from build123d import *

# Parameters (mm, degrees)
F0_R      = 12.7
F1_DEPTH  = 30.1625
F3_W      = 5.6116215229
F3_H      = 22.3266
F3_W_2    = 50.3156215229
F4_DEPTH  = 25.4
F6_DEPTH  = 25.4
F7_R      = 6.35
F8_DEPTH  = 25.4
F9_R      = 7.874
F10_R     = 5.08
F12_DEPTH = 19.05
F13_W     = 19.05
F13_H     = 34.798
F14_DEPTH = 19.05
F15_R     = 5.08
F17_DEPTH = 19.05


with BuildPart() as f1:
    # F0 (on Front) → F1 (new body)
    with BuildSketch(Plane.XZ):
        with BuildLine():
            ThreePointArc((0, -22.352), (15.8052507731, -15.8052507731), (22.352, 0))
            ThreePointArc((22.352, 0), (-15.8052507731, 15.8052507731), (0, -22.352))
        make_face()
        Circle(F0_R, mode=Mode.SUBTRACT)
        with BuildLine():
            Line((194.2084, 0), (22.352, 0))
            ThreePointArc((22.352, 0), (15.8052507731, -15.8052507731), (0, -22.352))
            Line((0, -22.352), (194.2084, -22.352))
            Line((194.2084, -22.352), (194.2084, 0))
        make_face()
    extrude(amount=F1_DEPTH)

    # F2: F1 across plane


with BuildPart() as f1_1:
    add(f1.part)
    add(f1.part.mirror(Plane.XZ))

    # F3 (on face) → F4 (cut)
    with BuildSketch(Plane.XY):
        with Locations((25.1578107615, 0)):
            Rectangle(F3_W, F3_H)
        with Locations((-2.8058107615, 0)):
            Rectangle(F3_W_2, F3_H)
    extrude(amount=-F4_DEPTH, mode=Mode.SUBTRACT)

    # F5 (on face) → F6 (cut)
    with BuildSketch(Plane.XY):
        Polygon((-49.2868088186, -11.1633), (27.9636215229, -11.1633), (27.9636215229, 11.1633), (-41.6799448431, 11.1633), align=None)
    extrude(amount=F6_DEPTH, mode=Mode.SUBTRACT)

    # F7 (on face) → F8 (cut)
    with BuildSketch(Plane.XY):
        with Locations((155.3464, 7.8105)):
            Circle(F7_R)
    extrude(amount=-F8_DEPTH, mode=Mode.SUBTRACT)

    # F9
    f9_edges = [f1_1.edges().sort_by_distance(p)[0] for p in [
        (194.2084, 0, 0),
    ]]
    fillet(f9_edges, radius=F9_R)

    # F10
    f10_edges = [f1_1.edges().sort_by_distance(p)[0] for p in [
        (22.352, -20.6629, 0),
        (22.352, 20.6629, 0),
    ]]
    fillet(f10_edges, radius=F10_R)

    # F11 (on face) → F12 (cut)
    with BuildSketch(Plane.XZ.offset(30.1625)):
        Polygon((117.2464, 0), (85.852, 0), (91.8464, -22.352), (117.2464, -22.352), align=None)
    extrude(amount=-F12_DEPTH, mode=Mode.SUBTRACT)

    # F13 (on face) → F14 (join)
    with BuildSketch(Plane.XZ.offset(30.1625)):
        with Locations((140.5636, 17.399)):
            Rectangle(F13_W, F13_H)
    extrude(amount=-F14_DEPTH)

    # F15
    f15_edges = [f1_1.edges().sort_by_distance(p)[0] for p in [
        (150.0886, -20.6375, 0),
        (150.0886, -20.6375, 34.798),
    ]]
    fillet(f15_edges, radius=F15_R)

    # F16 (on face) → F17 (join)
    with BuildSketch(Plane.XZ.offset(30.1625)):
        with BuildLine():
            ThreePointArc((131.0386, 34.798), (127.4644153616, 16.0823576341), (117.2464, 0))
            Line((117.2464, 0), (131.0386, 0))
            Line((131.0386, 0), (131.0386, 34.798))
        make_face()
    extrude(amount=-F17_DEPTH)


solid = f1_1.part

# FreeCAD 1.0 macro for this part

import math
import FreeCAD as App
import Part
import Sketcher
from FreeCAD import Vector
Q = App.Units.Quantity


def edges_at(feature, points):
    """Names of the edges that pass closest to the given points."""
    edges = feature.Shape.Edges
    near = lambda p: min(range(len(edges)), key=lambda i: edges[i].distToShape(Part.Vertex(*p))[0])
    return sorted({f"Edge{near(p) + 1}" for p in points})

doc = App.newDocument("Part")
params = doc.addObject("Spreadsheet::Sheet", "Params")
for row, (alias, value) in enumerate([
    ("sketch1_diameter", "1 in"),
    ("sketch1_radius", "0.88 in"),
    ("sketch1_width", "7.646 in"),
    ("pad1_length", "1.1875 in"),
    ("sketch2_height", "0.879 in"),
    ("pocket1_length", "1 in"),
    ("sketch3_height", "0.879 in"),
    ("pocket2_length", "1 in"),
    ("sketch4_diameter", "0.5 in"),
    ("pocket3_length", "1 in"),
    ("fillet_radius", "0.31 in"),
    ("fillet2_radius", "0.2 in"),
    ("sketch5_width", "1 in"),
    ("sketch5_height", "0.88 in"),
    ("sketch5_width2", "1.236 in"),
    ("pocket4_length", "0.75 in"),
    ("sketch6_width", "0.75 in"),
    ("sketch6_height", "1.37 in"),
    ("pad2_length", "0.75 in"),
    ("fillet3_radius", "0.2 in"),
    ("sketch7_radius", "2 in"),
    ("sketch7_height", "1.37 in"),
    ("sketch7_width", "0.543 in"),
    ("pad3_length", "0.75 in"),
], start=1):
    params.set(f"A{row}", alias)
    params.set(f"B{row}", "=" + value)
    params.setAlias(f"B{row}", alias)

body = doc.addObject("PartDesign::Body", "Body")

sketch1 = doc.addObject("Sketcher::SketchObject", "Sketch")
body.addObject(sketch1)
sketch1.AttachmentSupport = (doc.XZ_Plane, [""])
sketch1.MapMode = "FlatFace"
sketch1.addGeometry([
    Part.ArcOfCircle(Part.Circle(Vector(0, 0, 0), Vector(0, 0, 1), 22), math.radians(0), math.radians(270)),
    Part.LineSegment(Vector(0, -22, 0), Vector(194, -22, 0)),
    Part.LineSegment(Vector(194, -22, 0), Vector(194, 0, 0)),
    Part.LineSegment(Vector(194, 0, 0), Vector(22, 0, 0)),
    Part.Circle(Vector(0, 0, 0), Vector(0, 0, 1), 13),
], False)
sketch1.addConstraint([
    Sketcher.Constraint("Tangent", 0, 2, 1, 1),
    Sketcher.Constraint("Coincident", 1, 2, 2, 1),
    Sketcher.Constraint("Coincident", 2, 2, 3, 1),
    Sketcher.Constraint("Coincident", 3, 2, 0, 1),
    Sketcher.Constraint("Horizontal", 1),
    Sketcher.Constraint("Vertical", 2),
    Sketcher.Constraint("Horizontal", 3),
    Sketcher.Constraint("Coincident", 0, 3, -1, 1),
    Sketcher.Constraint("Coincident", 4, 3, -1, 1),
    Sketcher.Constraint("PointOnObject", 2, 2, -1),
    Sketcher.Constraint("Diameter", 4, Q("1 in")),
    Sketcher.Constraint("Radius", 0, Q("0.88 in")),
    Sketcher.Constraint("DistanceX", 1, 1, 1, 2, Q("7.646 in")),
])
sketch1.setExpression("Constraints[10]", "Params.sketch1_diameter")
sketch1.setExpression("Constraints[11]", "Params.sketch1_radius")
sketch1.setExpression("Constraints[12]", "Params.sketch1_width")
pad1 = doc.addObject("PartDesign::Pad", "Pad")
body.addObject(pad1)
pad1.Profile = sketch1
pad1.setExpression("Length", "Params.pad1_length")
body2 = doc.addObject("PartDesign::Body", "Body001")
doc.recompute()

body2.BaseFeature = body
doc.recompute()

mirroring = doc.addObject("Part::Mirroring", "Mirroring")
mirroring.Source = body
mirroring.Base = Vector(0, 0, 0)
mirroring.Normal = Vector(0, -1, 0)
body3 = doc.addObject("PartDesign::Body", "Body002")
body3.BaseFeature = mirroring
boolean = doc.addObject("PartDesign::Boolean", "Boolean")
body2.addObject(boolean)
boolean.Type = "Fuse"
boolean.addObjects([body3])
doc.recompute()

sketch2 = doc.addObject("Sketcher::SketchObject", "Sketch001")
body2.addObject(sketch2)
sketch2.AttachmentSupport = (doc.getObject("XY_Plane001"), [""])
sketch2.MapMode = "FlatFace"
sketch2.addGeometry([
    Part.LineSegment(Vector(28, -11, 0), Vector(28, 11, 0)),
    Part.LineSegment(Vector(28, 11, 0), Vector(-28, 11, 0)),
    Part.LineSegment(Vector(-28, 11, 0), Vector(-28, -11, 0)),
    Part.LineSegment(Vector(-28, -11, 0), Vector(28, -11, 0)),
], False)
sketch2.addConstraint([
    Sketcher.Constraint("Coincident", 0, 2, 1, 1),
    Sketcher.Constraint("Coincident", 1, 2, 2, 1),
    Sketcher.Constraint("Coincident", 2, 2, 3, 1),
    Sketcher.Constraint("Coincident", 3, 2, 0, 1),
    Sketcher.Constraint("Vertical", 0),
    Sketcher.Constraint("Horizontal", 1),
    Sketcher.Constraint("Vertical", 2),
    Sketcher.Constraint("Horizontal", 3),
    Sketcher.Constraint("Symmetric", 0, 2, 2, 2, -1, 1),
    Sketcher.Constraint("DistanceY", 0, 1, 0, 2, Q("0.879 in")),
    Sketcher.Constraint("DistanceX", 1, 2, 1, 1, 55.927243),
])
sketch2.setExpression("Constraints[9]", "Params.sketch2_height")
pocket1 = doc.addObject("PartDesign::Pocket", "Pocket")
body2.addObject(pocket1)
pocket1.Profile = sketch2
pocket1.setExpression("Length", "Params.pocket1_length")

sketch3 = doc.addObject("Sketcher::SketchObject", "Sketch002")
body2.addObject(sketch3)
sketch3.AttachmentSupport = (doc.getObject("XY_Plane001"), [""])
sketch3.MapMode = "FlatFace"
sketch3.addGeometry([
    Part.LineSegment(Vector(-49, -11, 0), Vector(28, -11, 0)),
    Part.LineSegment(Vector(28, -11, 0), Vector(28, 11, 0)),
    Part.LineSegment(Vector(28, 11, 0), Vector(-42, 11, 0)),
    Part.LineSegment(Vector(-42, 11, 0), Vector(-49, -11, 0)),
], False)
sketch3.addConstraint([
    Sketcher.Constraint("Coincident", 0, 2, 1, 1),
    Sketcher.Constraint("Coincident", 1, 2, 2, 1),
    Sketcher.Constraint("Coincident", 2, 2, 3, 1),
    Sketcher.Constraint("Coincident", 3, 2, 0, 1),
    Sketcher.Constraint("Horizontal", 0),
    Sketcher.Constraint("Vertical", 1),
    Sketcher.Constraint("Horizontal", 2),
    Sketcher.Constraint("DistanceY", 1, 1, 1, 2, Q("0.879 in")),
    Sketcher.Constraint("DistanceY", 0, 2, -1, 1, Q("0.4395 in")),
    Sketcher.Constraint("DistanceX", 0, 1, 0, 2, 77.25043),
    Sketcher.Constraint("Distance", 3, 23.586891),
    Sketcher.Constraint("DistanceX", -1, 1, 0, 2, 27.963622),
])
sketch3.setExpression("Constraints[7]", "Params.sketch3_height")
pocket2 = doc.addObject("PartDesign::Pocket", "Pocket001")
body2.addObject(pocket2)
pocket2.Profile = sketch3
pocket2.setExpression("Length", "Params.pocket2_length")
pocket2.Reversed = True

sketch4 = doc.addObject("Sketcher::SketchObject", "Sketch003")
body2.addObject(sketch4)
sketch4.AttachmentSupport = (doc.getObject("XY_Plane001"), [""])
sketch4.MapMode = "FlatFace"
sketch4.addGeometry(Part.Circle(Vector(155, 8, 0), Vector(0, 0, 1), 6), False)
sketch4.addConstraint([
    Sketcher.Constraint("Diameter", 0, Q("0.5 in")),
    Sketcher.Constraint("DistanceX", -1, 1, 0, 3, Q("6.116 in")),
    Sketcher.Constraint("DistanceY", -1, 1, 0, 3, Q("0.3075 in")),
])
sketch4.setExpression("Constraints[0]", "Params.sketch4_diameter")
pocket3 = doc.addObject("PartDesign::Pocket", "Pocket002")
body2.addObject(pocket3)
pocket3.Profile = sketch4
pocket3.setExpression("Length", "Params.pocket3_length")
doc.recompute()

fillet = doc.addObject("PartDesign::Fillet", "Fillet")
body2.addObject(fillet)
fillet.Base = (pocket3, edges_at(pocket3, [(194.208, 0, 0)]))
fillet.setExpression("Radius", "Params.fillet_radius")
doc.recompute()

fillet2 = doc.addObject("PartDesign::Fillet", "Fillet001")
body2.addObject(fillet2)
fillet2.Base = (fillet, edges_at(fillet, [(22.352, -20.663, 0), (22.352, 20.663, 0)]))
fillet2.setExpression("Radius", "Params.fillet2_radius")

sketch5 = doc.addObject("Sketcher::SketchObject", "Sketch004")
body2.addObject(sketch5)
sketch5.AttachmentSupport = (doc.getObject("XZ_Plane001"), [""])
sketch5.MapMode = "FlatFace"
sketch5.AttachmentOffset = App.Placement(Vector(0, 0, 1.1875 * 25.4), App.Rotation())
sketch5.addGeometry([
    Part.LineSegment(Vector(117, 0, 0), Vector(86, 0, 0)),
    Part.LineSegment(Vector(86, 0, 0), Vector(92, -22, 0)),
    Part.LineSegment(Vector(92, -22, 0), Vector(117, -22, 0)),
    Part.LineSegment(Vector(117, -22, 0), Vector(117, 0, 0)),
], False)
sketch5.addConstraint([
    Sketcher.Constraint("Coincident", 0, 2, 1, 1),
    Sketcher.Constraint("Coincident", 1, 2, 2, 1),
    Sketcher.Constraint("Coincident", 2, 2, 3, 1),
    Sketcher.Constraint("Coincident", 3, 2, 0, 1),
    Sketcher.Constraint("Horizontal", 0),
    Sketcher.Constraint("Horizontal", 2),
    Sketcher.Constraint("Vertical", 3),
    Sketcher.Constraint("PointOnObject", 0, 2, -1),
    Sketcher.Constraint("DistanceX", 2, 1, 2, 2, Q("1 in")),
    Sketcher.Constraint("DistanceY", 3, 1, 3, 2, Q("0.88 in")),
    Sketcher.Constraint("DistanceX", 0, 2, 0, 1, Q("1.236 in")),
    Sketcher.Constraint("DistanceX", -1, 1, 0, 2, Q("3.38 in")),
])
sketch5.setExpression("Constraints[8]", "Params.sketch5_width")
sketch5.setExpression("Constraints[9]", "Params.sketch5_height")
sketch5.setExpression("Constraints[10]", "Params.sketch5_width2")
pocket4 = doc.addObject("PartDesign::Pocket", "Pocket003")
body2.addObject(pocket4)
pocket4.Profile = sketch5
pocket4.setExpression("Length", "Params.pocket4_length")

sketch6 = doc.addObject("Sketcher::SketchObject", "Sketch005")
body2.addObject(sketch6)
sketch6.AttachmentSupport = (doc.getObject("XZ_Plane001"), [""])
sketch6.MapMode = "FlatFace"
sketch6.AttachmentOffset = App.Placement(Vector(0, 0, 1.1875 * 25.4), App.Rotation())
sketch6.addGeometry([
    Part.LineSegment(Vector(131, 35, 0), Vector(131, 0, 0)),
    Part.LineSegment(Vector(131, 0, 0), Vector(150, 0, 0)),
    Part.LineSegment(Vector(150, 0, 0), Vector(150, 35, 0)),
    Part.LineSegment(Vector(150, 35, 0), Vector(131, 35, 0)),
], False)
sketch6.addConstraint([
    Sketcher.Constraint("Coincident", 0, 2, 1, 1),
    Sketcher.Constraint("Coincident", 1, 2, 2, 1),
    Sketcher.Constraint("Coincident", 2, 2, 3, 1),
    Sketcher.Constraint("Coincident", 3, 2, 0, 1),
    Sketcher.Constraint("Vertical", 0),
    Sketcher.Constraint("Horizontal", 1),
    Sketcher.Constraint("Vertical", 2),
    Sketcher.Constraint("Horizontal", 3),
    Sketcher.Constraint("PointOnObject", 0, 2, -1),
    Sketcher.Constraint("DistanceX", 1, 1, 1, 2, Q("0.75 in")),
    Sketcher.Constraint("DistanceY", 0, 2, 0, 1, Q("1.37 in")),
    Sketcher.Constraint("DistanceX", -1, 1, 0, 2, Q("5.159 in")),
])
sketch6.setExpression("Constraints[9]", "Params.sketch6_width")
sketch6.setExpression("Constraints[10]", "Params.sketch6_height")
pad2 = doc.addObject("PartDesign::Pad", "Pad001")
body2.addObject(pad2)
pad2.Profile = sketch6
pad2.setExpression("Length", "Params.pad2_length")
pad2.Reversed = True
doc.recompute()

fillet3 = doc.addObject("PartDesign::Fillet", "Fillet002")
body2.addObject(fillet3)
fillet3.Base = (pad2, edges_at(pad2, [(150.089, -20.637, 0), (150.089, -20.637, 34.798)]))
fillet3.setExpression("Radius", "Params.fillet3_radius")

sketch7 = doc.addObject("Sketcher::SketchObject", "Sketch006")
body2.addObject(sketch7)
sketch7.AttachmentSupport = (doc.getObject("XZ_Plane001"), [""])
sketch7.MapMode = "FlatFace"
sketch7.AttachmentOffset = App.Placement(Vector(0, 0, 1.1875 * 25.4), App.Rotation())
sketch7.addGeometry([
    Part.ArcOfCircle(Part.Circle(Vector(80, 35, 0), Vector(0, 0, 1), 51), math.radians(-43), math.radians(0)),
    Part.LineSegment(Vector(117, 0, 0), Vector(131, 0, 0)),
    Part.LineSegment(Vector(131, 0, 0), Vector(131, 35, 0)),
], False)
sketch7.addConstraint([
    Sketcher.Constraint("Coincident", 0, 1, 1, 1),
    Sketcher.Constraint("Coincident", 1, 2, 2, 1),
    Sketcher.Constraint("Coincident", 2, 2, 0, 2),
    Sketcher.Constraint("Horizontal", 1),
    Sketcher.Constraint("Vertical", 2),
    Sketcher.Constraint("PointOnObject", 0, 1, -1),
    Sketcher.Constraint("Radius", 0, Q("2 in")),
    Sketcher.Constraint("DistanceY", 2, 1, 2, 2, Q("1.37 in")),
    Sketcher.Constraint("DistanceX", 1, 1, 1, 2, Q("0.543 in")),
    Sketcher.Constraint("DistanceX", -1, 1, 0, 3, Q("3.159 in")),
])
sketch7.setExpression("Constraints[6]", "Params.sketch7_radius")
sketch7.setExpression("Constraints[7]", "Params.sketch7_height")
sketch7.setExpression("Constraints[8]", "Params.sketch7_width")
pad3 = doc.addObject("PartDesign::Pad", "Pad002")
body2.addObject(pad3)
pad3.Profile = sketch7
pad3.setExpression("Length", "Params.pad3_length")
pad3.Reversed = True
mirroring.Visibility = False

doc.recompute()
